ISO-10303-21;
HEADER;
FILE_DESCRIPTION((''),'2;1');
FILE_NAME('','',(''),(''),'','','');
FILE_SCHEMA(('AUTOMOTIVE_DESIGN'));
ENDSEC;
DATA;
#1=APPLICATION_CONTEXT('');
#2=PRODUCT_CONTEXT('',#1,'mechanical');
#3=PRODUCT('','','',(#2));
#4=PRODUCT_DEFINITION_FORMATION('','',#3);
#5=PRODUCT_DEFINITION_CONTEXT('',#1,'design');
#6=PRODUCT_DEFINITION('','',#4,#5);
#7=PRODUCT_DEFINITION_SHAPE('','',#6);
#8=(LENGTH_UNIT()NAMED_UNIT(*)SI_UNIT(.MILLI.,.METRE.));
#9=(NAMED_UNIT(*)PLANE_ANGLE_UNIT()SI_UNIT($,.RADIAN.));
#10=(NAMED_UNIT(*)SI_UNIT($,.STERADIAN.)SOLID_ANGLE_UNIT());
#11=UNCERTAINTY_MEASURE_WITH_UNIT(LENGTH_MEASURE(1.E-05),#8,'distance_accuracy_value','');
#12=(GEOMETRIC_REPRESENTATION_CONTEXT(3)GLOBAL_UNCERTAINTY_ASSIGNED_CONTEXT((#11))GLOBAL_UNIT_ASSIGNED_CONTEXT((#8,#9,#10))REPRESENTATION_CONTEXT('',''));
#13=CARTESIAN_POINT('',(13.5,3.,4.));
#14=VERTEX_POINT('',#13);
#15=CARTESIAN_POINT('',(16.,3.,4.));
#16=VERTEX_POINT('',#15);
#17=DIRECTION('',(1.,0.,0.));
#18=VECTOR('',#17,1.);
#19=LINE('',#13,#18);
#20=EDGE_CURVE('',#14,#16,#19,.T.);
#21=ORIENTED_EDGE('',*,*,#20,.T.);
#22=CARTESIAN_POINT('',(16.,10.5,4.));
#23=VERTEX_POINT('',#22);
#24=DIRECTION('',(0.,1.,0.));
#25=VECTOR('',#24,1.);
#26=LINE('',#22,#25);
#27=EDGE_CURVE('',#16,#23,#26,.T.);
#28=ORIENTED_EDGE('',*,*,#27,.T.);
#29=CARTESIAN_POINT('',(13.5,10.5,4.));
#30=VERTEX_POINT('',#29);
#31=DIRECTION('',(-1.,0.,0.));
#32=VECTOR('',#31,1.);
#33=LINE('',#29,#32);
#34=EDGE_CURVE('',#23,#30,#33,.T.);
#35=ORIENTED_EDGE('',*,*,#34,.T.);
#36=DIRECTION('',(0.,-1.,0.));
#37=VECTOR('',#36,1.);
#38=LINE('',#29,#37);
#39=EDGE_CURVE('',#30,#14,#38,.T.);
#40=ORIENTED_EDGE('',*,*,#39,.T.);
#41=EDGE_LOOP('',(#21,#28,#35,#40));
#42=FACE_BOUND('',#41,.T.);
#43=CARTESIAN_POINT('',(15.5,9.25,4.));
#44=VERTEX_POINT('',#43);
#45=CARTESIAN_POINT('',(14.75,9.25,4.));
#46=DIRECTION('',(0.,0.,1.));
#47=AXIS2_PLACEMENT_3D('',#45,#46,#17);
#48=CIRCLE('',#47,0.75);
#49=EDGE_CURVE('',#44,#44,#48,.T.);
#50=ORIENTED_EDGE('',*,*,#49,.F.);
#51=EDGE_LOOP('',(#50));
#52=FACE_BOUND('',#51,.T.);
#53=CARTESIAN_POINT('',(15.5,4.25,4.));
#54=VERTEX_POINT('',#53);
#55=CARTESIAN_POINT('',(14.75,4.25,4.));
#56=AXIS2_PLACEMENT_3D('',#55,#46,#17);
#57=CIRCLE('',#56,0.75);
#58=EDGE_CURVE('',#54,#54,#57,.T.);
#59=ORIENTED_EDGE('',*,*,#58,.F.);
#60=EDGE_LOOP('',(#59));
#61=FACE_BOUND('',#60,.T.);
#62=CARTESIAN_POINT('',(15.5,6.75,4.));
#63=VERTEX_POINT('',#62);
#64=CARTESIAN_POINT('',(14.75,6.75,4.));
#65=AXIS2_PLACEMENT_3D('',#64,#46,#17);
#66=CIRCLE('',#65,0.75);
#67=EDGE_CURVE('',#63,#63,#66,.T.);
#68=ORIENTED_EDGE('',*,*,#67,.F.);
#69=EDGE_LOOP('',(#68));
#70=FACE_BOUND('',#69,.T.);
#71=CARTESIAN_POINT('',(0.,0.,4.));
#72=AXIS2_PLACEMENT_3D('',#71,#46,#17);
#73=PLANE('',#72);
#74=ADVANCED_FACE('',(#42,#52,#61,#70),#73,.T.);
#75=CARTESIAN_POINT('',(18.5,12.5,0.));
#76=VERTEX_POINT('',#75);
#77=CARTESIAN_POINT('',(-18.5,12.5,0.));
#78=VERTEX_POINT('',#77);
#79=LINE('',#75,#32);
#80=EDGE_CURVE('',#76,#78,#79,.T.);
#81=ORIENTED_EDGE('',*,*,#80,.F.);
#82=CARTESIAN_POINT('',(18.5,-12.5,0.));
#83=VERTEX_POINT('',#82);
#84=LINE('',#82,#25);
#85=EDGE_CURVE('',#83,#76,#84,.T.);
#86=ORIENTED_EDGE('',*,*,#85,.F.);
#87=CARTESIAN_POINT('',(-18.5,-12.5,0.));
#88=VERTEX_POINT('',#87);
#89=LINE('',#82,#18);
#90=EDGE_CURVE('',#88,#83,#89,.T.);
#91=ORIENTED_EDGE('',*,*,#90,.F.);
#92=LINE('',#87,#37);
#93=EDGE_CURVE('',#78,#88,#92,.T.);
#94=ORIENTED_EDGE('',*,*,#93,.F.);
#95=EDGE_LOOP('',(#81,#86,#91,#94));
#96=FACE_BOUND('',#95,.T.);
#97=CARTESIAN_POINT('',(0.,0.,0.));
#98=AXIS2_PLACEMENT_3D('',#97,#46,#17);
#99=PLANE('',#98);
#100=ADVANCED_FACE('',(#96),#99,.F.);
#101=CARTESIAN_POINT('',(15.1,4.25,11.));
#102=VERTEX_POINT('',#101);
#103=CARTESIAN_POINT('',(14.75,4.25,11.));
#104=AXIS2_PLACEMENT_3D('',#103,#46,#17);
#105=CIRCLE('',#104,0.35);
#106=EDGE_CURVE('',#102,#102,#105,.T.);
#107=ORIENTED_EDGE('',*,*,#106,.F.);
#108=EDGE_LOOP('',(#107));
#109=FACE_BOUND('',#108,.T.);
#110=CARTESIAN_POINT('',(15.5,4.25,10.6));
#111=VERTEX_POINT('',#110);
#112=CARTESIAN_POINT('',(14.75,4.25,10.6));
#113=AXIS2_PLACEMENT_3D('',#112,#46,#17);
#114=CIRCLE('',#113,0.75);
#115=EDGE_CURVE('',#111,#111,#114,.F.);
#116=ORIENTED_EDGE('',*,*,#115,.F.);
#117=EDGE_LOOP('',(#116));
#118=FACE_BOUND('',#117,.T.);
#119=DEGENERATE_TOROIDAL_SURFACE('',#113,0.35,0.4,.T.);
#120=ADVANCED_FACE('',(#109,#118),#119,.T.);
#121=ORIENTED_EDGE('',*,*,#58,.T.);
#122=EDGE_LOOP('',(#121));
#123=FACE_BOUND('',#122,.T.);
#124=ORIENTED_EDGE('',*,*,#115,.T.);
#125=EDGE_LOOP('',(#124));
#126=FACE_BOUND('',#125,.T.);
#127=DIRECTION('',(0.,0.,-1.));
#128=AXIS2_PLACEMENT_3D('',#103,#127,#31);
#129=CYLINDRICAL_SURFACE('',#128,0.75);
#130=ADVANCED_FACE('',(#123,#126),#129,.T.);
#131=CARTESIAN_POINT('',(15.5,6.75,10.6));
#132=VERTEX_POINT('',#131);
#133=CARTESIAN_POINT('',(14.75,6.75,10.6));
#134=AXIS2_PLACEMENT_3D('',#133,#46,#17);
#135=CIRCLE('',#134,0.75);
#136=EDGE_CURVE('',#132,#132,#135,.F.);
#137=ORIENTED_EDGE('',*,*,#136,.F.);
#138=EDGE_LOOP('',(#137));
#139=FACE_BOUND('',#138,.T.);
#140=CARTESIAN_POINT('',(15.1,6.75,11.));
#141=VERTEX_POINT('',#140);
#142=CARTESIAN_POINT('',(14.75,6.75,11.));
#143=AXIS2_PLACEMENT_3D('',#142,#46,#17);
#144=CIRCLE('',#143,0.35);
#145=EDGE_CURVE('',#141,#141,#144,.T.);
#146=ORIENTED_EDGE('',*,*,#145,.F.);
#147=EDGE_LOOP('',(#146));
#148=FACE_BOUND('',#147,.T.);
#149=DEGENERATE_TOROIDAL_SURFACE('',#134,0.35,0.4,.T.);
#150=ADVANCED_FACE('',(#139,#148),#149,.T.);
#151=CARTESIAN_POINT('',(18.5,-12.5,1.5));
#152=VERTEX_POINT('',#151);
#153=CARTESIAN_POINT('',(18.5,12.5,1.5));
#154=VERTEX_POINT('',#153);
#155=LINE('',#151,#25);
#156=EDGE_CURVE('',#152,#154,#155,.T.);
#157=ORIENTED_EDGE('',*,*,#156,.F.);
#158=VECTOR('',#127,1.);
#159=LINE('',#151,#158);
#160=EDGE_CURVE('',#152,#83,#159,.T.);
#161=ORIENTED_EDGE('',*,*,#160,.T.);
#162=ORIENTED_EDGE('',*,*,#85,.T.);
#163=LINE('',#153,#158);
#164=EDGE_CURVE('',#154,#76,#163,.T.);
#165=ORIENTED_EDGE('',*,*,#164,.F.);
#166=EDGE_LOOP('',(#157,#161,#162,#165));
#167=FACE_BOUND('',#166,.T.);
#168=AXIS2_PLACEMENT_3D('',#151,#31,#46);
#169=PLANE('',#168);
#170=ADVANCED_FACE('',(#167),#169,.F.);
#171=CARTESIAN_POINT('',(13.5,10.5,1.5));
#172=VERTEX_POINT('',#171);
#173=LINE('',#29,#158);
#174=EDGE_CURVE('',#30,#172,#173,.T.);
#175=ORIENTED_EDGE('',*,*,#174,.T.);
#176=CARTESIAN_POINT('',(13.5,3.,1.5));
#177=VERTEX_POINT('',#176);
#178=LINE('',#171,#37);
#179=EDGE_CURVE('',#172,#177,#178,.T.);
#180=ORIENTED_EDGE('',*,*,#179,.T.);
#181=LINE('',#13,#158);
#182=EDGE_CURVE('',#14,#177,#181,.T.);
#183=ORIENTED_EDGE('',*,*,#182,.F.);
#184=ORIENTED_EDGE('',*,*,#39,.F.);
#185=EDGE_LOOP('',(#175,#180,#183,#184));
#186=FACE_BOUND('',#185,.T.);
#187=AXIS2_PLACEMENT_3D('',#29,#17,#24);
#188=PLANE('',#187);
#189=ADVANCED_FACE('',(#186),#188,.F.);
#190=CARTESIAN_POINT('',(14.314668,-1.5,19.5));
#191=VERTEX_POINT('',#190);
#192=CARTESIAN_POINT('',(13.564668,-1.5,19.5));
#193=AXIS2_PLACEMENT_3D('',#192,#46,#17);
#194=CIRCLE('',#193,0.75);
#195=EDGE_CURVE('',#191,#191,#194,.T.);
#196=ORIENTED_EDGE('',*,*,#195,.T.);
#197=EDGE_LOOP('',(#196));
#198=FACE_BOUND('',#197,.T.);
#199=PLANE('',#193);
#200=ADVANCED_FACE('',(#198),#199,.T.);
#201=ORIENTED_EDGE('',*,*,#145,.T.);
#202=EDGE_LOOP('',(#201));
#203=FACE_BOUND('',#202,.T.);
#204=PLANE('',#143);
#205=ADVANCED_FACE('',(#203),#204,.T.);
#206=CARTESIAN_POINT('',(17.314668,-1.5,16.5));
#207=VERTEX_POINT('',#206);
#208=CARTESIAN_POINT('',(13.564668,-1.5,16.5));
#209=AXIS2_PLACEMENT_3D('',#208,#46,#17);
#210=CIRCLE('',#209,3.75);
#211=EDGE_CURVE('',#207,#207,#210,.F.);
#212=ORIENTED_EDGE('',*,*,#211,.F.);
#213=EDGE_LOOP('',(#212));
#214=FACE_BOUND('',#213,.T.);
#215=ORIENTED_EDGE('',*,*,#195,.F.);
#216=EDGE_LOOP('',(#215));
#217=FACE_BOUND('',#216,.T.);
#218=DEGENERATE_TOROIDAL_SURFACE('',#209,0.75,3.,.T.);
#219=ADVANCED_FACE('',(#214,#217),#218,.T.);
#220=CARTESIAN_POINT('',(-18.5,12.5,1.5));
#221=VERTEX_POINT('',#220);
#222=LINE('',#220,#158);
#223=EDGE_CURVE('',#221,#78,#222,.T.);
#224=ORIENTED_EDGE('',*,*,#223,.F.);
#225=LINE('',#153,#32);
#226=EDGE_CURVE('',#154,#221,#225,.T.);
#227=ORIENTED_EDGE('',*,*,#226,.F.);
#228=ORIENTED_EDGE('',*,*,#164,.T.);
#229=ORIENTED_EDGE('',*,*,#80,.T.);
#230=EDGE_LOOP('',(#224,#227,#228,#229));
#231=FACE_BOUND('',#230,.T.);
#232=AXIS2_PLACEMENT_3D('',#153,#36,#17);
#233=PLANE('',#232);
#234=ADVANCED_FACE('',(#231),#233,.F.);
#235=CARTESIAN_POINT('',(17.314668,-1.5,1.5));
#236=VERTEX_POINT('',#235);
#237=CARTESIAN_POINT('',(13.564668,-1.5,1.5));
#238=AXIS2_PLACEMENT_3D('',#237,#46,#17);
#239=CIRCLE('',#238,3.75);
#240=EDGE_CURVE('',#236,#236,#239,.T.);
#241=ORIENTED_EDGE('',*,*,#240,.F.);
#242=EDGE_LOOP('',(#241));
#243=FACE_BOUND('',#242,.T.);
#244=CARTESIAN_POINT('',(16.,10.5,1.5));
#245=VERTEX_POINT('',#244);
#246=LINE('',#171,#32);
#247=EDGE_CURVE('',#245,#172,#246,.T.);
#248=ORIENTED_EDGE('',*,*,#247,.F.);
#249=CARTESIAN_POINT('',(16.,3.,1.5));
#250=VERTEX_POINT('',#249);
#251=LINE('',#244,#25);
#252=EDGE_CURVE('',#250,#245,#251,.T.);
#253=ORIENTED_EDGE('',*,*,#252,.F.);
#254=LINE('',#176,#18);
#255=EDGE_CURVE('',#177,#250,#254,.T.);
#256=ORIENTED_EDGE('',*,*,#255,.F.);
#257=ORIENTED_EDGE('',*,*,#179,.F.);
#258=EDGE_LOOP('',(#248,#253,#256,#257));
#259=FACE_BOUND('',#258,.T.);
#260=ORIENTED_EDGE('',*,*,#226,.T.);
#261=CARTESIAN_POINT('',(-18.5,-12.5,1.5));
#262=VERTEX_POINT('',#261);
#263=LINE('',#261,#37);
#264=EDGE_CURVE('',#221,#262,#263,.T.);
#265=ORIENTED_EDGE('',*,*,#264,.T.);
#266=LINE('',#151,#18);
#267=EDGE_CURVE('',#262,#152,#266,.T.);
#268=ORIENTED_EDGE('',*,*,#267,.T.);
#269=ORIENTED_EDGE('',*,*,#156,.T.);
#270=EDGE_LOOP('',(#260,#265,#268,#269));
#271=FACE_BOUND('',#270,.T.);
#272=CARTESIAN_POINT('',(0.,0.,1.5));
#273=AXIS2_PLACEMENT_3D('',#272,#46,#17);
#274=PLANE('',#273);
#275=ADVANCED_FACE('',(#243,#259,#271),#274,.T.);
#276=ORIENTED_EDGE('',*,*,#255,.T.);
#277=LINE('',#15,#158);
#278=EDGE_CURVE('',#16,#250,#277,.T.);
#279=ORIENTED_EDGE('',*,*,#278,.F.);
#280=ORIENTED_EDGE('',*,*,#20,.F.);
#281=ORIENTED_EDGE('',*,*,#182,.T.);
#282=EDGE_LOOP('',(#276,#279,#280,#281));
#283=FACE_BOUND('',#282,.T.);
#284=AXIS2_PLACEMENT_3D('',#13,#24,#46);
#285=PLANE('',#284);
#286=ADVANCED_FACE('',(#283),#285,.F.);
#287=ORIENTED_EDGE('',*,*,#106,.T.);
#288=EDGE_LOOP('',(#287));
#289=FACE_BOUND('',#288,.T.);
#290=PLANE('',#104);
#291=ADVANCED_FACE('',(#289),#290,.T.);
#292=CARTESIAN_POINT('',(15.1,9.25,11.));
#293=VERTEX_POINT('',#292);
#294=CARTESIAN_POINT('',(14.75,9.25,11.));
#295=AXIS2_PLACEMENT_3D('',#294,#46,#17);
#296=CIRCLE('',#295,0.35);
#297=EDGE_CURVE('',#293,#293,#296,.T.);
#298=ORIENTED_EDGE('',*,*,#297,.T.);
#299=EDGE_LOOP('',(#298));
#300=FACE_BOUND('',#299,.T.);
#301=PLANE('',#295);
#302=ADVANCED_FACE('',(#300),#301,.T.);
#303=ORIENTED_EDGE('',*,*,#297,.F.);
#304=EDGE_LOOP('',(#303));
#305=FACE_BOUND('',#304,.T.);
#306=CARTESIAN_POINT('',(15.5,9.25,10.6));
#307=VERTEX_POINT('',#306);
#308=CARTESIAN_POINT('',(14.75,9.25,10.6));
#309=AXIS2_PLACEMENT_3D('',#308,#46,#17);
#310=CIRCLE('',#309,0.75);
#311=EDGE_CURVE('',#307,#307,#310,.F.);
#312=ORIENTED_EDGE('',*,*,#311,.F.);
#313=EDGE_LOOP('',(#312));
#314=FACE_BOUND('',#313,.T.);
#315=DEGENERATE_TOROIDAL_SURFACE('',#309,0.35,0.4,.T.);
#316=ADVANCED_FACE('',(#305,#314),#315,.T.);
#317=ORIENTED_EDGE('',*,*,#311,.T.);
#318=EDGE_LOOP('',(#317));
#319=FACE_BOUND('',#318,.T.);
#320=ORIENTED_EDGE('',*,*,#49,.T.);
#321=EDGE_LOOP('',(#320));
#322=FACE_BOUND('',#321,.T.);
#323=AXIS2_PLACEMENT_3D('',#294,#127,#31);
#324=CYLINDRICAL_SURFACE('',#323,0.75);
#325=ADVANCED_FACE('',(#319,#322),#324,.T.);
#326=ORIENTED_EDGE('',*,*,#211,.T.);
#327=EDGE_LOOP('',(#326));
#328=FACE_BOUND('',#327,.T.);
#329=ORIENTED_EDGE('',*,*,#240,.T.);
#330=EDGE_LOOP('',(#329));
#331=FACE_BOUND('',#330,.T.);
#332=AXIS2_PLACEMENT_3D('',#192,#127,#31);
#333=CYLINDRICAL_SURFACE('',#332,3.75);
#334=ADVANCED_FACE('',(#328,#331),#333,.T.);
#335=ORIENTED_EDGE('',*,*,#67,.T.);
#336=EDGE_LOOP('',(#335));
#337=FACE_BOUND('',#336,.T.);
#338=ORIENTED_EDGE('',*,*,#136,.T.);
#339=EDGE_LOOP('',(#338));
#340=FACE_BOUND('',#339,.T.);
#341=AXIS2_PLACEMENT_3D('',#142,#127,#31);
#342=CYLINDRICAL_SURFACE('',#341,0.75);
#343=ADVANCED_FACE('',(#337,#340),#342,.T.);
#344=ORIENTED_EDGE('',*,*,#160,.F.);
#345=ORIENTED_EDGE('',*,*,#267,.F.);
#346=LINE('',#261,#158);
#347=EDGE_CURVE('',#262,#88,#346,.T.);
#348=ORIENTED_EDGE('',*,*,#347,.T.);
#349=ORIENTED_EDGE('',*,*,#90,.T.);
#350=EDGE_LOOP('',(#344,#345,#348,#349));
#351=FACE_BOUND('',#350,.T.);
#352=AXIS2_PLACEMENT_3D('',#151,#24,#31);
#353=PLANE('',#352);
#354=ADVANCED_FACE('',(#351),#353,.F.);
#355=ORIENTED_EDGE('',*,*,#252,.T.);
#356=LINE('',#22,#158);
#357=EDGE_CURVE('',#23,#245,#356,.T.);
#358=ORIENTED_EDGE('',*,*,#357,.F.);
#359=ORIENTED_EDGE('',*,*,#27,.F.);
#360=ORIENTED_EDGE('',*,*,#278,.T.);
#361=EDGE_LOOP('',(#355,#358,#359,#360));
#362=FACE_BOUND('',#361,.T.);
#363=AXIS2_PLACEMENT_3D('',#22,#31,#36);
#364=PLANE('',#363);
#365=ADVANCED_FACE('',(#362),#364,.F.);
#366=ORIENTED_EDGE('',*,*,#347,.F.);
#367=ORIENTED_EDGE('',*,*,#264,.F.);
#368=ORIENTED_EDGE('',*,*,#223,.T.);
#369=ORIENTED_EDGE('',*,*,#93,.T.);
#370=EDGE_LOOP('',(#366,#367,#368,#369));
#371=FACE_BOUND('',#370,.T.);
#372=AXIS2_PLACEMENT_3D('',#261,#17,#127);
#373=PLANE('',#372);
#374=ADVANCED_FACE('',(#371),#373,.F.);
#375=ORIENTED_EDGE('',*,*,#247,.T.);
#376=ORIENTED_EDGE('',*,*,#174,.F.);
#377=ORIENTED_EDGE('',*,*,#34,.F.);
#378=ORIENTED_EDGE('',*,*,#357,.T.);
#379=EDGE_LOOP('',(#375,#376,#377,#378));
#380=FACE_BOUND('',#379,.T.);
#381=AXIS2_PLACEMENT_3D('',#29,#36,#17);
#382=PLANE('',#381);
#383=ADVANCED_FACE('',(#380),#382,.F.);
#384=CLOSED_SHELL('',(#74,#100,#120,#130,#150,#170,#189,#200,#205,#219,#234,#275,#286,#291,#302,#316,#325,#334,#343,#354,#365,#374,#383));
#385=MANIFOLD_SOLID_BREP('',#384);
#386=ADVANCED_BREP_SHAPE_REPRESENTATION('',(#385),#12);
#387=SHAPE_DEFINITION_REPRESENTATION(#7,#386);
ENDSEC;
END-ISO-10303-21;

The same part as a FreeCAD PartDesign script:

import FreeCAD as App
import Part
import Sketcher
from FreeCAD import Vector
Q = App.Units.Quantity


def edges_at(feature, points):
    """Names of the edges that pass closest to the given points."""
    edges = feature.Shape.Edges
    near = lambda p: min(range(len(edges)), key=lambda i: edges[i].distToShape(Part.Vertex(*p))[0])
    return sorted({f"Edge{near(p) + 1}" for p in points})


def add_polygon(sketch, points):
    """Adds a closed chain of lines whose ends are joined by coincident constraints."""
    first, n = sketch.GeometryCount, len(points)
    for a, b in zip(points, points[1:] + points[:1]):
        sketch.addGeometry(Part.LineSegment(App.Vector(*a, 0), App.Vector(*b, 0)), False)
    for i in range(n):
        sketch.addConstraint(Sketcher.Constraint("Coincident", first + i, 2, first + (i + 1) % n, 1))

doc = App.newDocument("Part")
body = doc.addObject("PartDesign::Body", "Body")

sketch1 = doc.addObject("Sketcher::SketchObject", "Sketch")
body.addObject(sketch1)
sketch1.AttachmentSupport = (doc.XY_Plane, [""])
sketch1.MapMode = "FlatFace"
add_polygon(sketch1, [(-18.5, 12.5), (-18.5, -12.5), (18.5, -12.5), (18.5, 12.5)])
sketch1.addConstraint([
    Sketcher.Constraint("Vertical", 0),
    Sketcher.Constraint("Horizontal", 1),
    Sketcher.Constraint("Vertical", 2),
    Sketcher.Constraint("Horizontal", 3),
    Sketcher.Constraint("Symmetric", 0, 2, 2, 2, -1, 1),
    Sketcher.Constraint("DistanceX", 1, 1, 1, 2, Q("37 mm")),
    Sketcher.Constraint("DistanceY", 0, 2, 0, 1, Q("25 mm")),
])
pad1 = doc.addObject("PartDesign::Pad", "Pad")
body.addObject(pad1)
pad1.Profile = sketch1
pad1.Length = 1.5

sketch2 = doc.addObject("Sketcher::SketchObject", "Sketch001")
body.addObject(sketch2)
sketch2.AttachmentSupport = (doc.XY_Plane, [""])
sketch2.MapMode = "FlatFace"
sketch2.AttachmentOffset = App.Placement(Vector(0, 0, 1.5), App.Rotation())
sketch2.addGeometry(Part.Circle(Vector(13.564668, -1.5, 0), Vector(0, 0, 1), 3.75), False)
sketch2.addConstraint([
    Sketcher.Constraint("Diameter", 0, Q("7.5 mm")),
    Sketcher.Constraint("DistanceY", 0, 3, -1, 1, Q("1.5 mm")),
    Sketcher.Constraint("DistanceX", -1, 1, 0, 3, Q("13.564668 mm")),
])
pad2 = doc.addObject("PartDesign::Pad", "Pad001")
body.addObject(pad2)
pad2.Profile = sketch2
pad2.Length = 18
doc.recompute()

fillet = doc.addObject("PartDesign::Fillet", "Fillet")
body.addObject(fillet)
fillet.Base = (pad2, edges_at(pad2, [(9.815, -1.5, 19.5)]))
fillet.Radius = 3
body2 = doc.addObject("PartDesign::Body", "Body001")

sketch3 = doc.addObject("Sketcher::SketchObject", "Sketch002")
body2.addObject(sketch3)
sketch3.AttachmentSupport = (doc.getObject("XY_Plane001"), [""])
sketch3.MapMode = "FlatFace"
sketch3.AttachmentOffset = App.Placement(Vector(0, 0, 1.5), App.Rotation())
add_polygon(sketch3, [(13.5, 10.5), (13.5, 3), (16, 3), (16, 10.5)])
sketch3.addConstraint([
    Sketcher.Constraint("Vertical", 0),
    Sketcher.Constraint("Horizontal", 1),
    Sketcher.Constraint("Vertical", 2),
    Sketcher.Constraint("Horizontal", 3),
    Sketcher.Constraint("DistanceX", 1, 1, 1, 2, Q("2.5 mm")),
    Sketcher.Constraint("DistanceY", 0, 2, 0, 1, Q("7.5 mm")),
    Sketcher.Constraint("DistanceY", -1, 1, 0, 2, Q("3 mm")),
    Sketcher.Constraint("DistanceX", -1, 1, 1, 2, Q("16 mm")),
])
pad3 = doc.addObject("PartDesign::Pad", "Pad002")
body2.addObject(pad3)
pad3.Profile = sketch3
pad3.Length = 2.5
doc.recompute()

boolean = doc.addObject("PartDesign::Boolean", "Boolean")
body.addObject(boolean)
boolean.Type = "Fuse"
boolean.addObjects([body2])

sketch4 = doc.addObject("Sketcher::SketchObject", "Sketch003")
body.addObject(sketch4)
sketch4.AttachmentSupport = (doc.XY_Plane, [""])
sketch4.MapMode = "FlatFace"
sketch4.AttachmentOffset = App.Placement(Vector(0, 0, 4), App.Rotation())
sketch4.addGeometry(Part.Circle(Vector(14.75, 9.25, 0), Vector(0, 0, 1), 0.75), False)
sketch4.addConstraint([
    Sketcher.Constraint("Diameter", 0, Q("1.5 mm")),
    Sketcher.Constraint("DistanceX", -1, 1, 0, 3, Q("14.75 mm")),
    Sketcher.Constraint("DistanceY", -1, 1, 0, 3, Q("9.25 mm")),
])
pad4 = doc.addObject("PartDesign::Pad", "Pad003")
body.addObject(pad4)
pad4.Profile = sketch4
pad4.Length = 7
doc.recompute()

linearpattern = doc.addObject("PartDesign::LinearPattern", "LinearPattern")
body.addObject(linearpattern)
linearpattern.Originals = [pad4]
linearpattern.Direction = (doc.Y_Axis, [""])
linearpattern.Mode = "offset"
linearpattern.Offset = 2.5
linearpattern.Occurrences = 3
linearpattern.Reversed = True
body.Tip = linearpattern
doc.recompute()

fillet2 = doc.addObject("PartDesign::Fillet", "Fillet001")
body.addObject(fillet2)
fillet2.Base = (linearpattern, edges_at(linearpattern, [(14, 9.25, 11), (14, 6.75, 11), (14, 4.25, 11)]))
fillet2.Radius = 0.4

doc.recompute()
